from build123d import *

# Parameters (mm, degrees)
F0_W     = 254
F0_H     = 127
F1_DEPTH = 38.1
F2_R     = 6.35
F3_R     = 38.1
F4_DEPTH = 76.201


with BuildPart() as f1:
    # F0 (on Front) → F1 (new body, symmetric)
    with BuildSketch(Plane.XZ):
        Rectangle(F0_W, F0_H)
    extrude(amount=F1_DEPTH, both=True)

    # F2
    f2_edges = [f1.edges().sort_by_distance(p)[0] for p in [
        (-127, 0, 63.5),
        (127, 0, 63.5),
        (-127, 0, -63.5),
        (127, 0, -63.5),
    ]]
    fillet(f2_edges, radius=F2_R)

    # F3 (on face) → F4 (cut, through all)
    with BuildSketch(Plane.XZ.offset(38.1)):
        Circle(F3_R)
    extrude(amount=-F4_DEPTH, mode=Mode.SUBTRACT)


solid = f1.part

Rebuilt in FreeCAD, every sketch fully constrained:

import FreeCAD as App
import Part
import Sketcher
from FreeCAD import Vector
Q = App.Units.Quantity


def edges_at(feature, points):
    """Names of the edges that pass closest to the given points."""
    edges = feature.Shape.Edges
    near = lambda p: min(range(len(edges)), key=lambda i: edges[i].distToShape(Part.Vertex(*p))[0])
    return sorted({f"Edge{near(p) + 1}" for p in points})

doc = App.newDocument("Part")
body = doc.addObject("PartDesign::Body", "Body")

sketch1 = body.newObject("Sketcher::SketchObject", "Sketch")
sketch1.AttachmentSupport = (doc.getObject("XZ_Plane"), [""])
sketch1.MapMode = "FlatFace"
sketch1.addGeometry(Part.LineSegment(Vector(-127, 64, 0), Vector(-127, -64, 0)), False)
sketch1.addGeometry(Part.LineSegment(Vector(-127, -64, 0), Vector(127, -64, 0)), False)
sketch1.addGeometry(Part.LineSegment(Vector(127, -64, 0), Vector(127, 64, 0)), False)
sketch1.addGeometry(Part.LineSegment(Vector(127, 64, 0), Vector(-127, 64, 0)), False)
sketch1.addConstraint(Sketcher.Constraint("Coincident", 0, 2, 1, 1))
sketch1.addConstraint(Sketcher.Constraint("Coincident", 1, 2, 2, 1))
sketch1.addConstraint(Sketcher.Constraint("Coincident", 2, 2, 3, 1))
sketch1.addConstraint(Sketcher.Constraint("Coincident", 3, 2, 0, 1))
sketch1.addConstraint(Sketcher.Constraint("Vertical", 0))
sketch1.addConstraint(Sketcher.Constraint("Horizontal", 1))
sketch1.addConstraint(Sketcher.Constraint("Vertical", 2))
sketch1.addConstraint(Sketcher.Constraint("Horizontal", 3))
sketch1.addConstraint(Sketcher.Constraint("Symmetric", 0, 2, 2, 2, -1, 1))
sketch1.addConstraint(Sketcher.Constraint("DistanceX", 1, 1, 1, 2, Q("10 in")))
sketch1.addConstraint(Sketcher.Constraint("DistanceY", 0, 2, 0, 1, Q("5 in")))
pad1 = body.newObject("PartDesign::Pad", "Pad")
pad1.Profile = sketch1
pad1.Length = Q("3 in")
pad1.Midplane = True
doc.recompute()

fillet = body.newObject("PartDesign::Fillet", "Fillet")
fillet.Base = (pad1, edges_at(pad1, [
    (-127, 0, 63.5),
    (127, 0, 63.5),
    (-127, 0, -63.5),
    (127, 0, -63.5),
]))
fillet.Radius = Q("0.25 in")

sketch2 = body.newObject("Sketcher::SketchObject", "Sketch001")
sketch2.AttachmentSupport = (doc.getObject("XZ_Plane"), [""])
sketch2.MapMode = "FlatFace"
sketch2.AttachmentOffset = App.Placement(Vector(0, 0, 1.5 * 25.4), App.Rotation())
sketch2.addGeometry(Part.Circle(Vector(0, 0, 0), Vector(0, 0, 1), 38), False)
sketch2.addConstraint(Sketcher.Constraint("Coincident", 0, 3, -1, 1))
sketch2.addConstraint(Sketcher.Constraint("Diameter", 0, Q("3 in")))
pocket1 = body.newObject("PartDesign::Pocket", "Pocket")
pocket1.Profile = sketch2
pocket1.Type = "ThroughAll"

doc.recompute()
